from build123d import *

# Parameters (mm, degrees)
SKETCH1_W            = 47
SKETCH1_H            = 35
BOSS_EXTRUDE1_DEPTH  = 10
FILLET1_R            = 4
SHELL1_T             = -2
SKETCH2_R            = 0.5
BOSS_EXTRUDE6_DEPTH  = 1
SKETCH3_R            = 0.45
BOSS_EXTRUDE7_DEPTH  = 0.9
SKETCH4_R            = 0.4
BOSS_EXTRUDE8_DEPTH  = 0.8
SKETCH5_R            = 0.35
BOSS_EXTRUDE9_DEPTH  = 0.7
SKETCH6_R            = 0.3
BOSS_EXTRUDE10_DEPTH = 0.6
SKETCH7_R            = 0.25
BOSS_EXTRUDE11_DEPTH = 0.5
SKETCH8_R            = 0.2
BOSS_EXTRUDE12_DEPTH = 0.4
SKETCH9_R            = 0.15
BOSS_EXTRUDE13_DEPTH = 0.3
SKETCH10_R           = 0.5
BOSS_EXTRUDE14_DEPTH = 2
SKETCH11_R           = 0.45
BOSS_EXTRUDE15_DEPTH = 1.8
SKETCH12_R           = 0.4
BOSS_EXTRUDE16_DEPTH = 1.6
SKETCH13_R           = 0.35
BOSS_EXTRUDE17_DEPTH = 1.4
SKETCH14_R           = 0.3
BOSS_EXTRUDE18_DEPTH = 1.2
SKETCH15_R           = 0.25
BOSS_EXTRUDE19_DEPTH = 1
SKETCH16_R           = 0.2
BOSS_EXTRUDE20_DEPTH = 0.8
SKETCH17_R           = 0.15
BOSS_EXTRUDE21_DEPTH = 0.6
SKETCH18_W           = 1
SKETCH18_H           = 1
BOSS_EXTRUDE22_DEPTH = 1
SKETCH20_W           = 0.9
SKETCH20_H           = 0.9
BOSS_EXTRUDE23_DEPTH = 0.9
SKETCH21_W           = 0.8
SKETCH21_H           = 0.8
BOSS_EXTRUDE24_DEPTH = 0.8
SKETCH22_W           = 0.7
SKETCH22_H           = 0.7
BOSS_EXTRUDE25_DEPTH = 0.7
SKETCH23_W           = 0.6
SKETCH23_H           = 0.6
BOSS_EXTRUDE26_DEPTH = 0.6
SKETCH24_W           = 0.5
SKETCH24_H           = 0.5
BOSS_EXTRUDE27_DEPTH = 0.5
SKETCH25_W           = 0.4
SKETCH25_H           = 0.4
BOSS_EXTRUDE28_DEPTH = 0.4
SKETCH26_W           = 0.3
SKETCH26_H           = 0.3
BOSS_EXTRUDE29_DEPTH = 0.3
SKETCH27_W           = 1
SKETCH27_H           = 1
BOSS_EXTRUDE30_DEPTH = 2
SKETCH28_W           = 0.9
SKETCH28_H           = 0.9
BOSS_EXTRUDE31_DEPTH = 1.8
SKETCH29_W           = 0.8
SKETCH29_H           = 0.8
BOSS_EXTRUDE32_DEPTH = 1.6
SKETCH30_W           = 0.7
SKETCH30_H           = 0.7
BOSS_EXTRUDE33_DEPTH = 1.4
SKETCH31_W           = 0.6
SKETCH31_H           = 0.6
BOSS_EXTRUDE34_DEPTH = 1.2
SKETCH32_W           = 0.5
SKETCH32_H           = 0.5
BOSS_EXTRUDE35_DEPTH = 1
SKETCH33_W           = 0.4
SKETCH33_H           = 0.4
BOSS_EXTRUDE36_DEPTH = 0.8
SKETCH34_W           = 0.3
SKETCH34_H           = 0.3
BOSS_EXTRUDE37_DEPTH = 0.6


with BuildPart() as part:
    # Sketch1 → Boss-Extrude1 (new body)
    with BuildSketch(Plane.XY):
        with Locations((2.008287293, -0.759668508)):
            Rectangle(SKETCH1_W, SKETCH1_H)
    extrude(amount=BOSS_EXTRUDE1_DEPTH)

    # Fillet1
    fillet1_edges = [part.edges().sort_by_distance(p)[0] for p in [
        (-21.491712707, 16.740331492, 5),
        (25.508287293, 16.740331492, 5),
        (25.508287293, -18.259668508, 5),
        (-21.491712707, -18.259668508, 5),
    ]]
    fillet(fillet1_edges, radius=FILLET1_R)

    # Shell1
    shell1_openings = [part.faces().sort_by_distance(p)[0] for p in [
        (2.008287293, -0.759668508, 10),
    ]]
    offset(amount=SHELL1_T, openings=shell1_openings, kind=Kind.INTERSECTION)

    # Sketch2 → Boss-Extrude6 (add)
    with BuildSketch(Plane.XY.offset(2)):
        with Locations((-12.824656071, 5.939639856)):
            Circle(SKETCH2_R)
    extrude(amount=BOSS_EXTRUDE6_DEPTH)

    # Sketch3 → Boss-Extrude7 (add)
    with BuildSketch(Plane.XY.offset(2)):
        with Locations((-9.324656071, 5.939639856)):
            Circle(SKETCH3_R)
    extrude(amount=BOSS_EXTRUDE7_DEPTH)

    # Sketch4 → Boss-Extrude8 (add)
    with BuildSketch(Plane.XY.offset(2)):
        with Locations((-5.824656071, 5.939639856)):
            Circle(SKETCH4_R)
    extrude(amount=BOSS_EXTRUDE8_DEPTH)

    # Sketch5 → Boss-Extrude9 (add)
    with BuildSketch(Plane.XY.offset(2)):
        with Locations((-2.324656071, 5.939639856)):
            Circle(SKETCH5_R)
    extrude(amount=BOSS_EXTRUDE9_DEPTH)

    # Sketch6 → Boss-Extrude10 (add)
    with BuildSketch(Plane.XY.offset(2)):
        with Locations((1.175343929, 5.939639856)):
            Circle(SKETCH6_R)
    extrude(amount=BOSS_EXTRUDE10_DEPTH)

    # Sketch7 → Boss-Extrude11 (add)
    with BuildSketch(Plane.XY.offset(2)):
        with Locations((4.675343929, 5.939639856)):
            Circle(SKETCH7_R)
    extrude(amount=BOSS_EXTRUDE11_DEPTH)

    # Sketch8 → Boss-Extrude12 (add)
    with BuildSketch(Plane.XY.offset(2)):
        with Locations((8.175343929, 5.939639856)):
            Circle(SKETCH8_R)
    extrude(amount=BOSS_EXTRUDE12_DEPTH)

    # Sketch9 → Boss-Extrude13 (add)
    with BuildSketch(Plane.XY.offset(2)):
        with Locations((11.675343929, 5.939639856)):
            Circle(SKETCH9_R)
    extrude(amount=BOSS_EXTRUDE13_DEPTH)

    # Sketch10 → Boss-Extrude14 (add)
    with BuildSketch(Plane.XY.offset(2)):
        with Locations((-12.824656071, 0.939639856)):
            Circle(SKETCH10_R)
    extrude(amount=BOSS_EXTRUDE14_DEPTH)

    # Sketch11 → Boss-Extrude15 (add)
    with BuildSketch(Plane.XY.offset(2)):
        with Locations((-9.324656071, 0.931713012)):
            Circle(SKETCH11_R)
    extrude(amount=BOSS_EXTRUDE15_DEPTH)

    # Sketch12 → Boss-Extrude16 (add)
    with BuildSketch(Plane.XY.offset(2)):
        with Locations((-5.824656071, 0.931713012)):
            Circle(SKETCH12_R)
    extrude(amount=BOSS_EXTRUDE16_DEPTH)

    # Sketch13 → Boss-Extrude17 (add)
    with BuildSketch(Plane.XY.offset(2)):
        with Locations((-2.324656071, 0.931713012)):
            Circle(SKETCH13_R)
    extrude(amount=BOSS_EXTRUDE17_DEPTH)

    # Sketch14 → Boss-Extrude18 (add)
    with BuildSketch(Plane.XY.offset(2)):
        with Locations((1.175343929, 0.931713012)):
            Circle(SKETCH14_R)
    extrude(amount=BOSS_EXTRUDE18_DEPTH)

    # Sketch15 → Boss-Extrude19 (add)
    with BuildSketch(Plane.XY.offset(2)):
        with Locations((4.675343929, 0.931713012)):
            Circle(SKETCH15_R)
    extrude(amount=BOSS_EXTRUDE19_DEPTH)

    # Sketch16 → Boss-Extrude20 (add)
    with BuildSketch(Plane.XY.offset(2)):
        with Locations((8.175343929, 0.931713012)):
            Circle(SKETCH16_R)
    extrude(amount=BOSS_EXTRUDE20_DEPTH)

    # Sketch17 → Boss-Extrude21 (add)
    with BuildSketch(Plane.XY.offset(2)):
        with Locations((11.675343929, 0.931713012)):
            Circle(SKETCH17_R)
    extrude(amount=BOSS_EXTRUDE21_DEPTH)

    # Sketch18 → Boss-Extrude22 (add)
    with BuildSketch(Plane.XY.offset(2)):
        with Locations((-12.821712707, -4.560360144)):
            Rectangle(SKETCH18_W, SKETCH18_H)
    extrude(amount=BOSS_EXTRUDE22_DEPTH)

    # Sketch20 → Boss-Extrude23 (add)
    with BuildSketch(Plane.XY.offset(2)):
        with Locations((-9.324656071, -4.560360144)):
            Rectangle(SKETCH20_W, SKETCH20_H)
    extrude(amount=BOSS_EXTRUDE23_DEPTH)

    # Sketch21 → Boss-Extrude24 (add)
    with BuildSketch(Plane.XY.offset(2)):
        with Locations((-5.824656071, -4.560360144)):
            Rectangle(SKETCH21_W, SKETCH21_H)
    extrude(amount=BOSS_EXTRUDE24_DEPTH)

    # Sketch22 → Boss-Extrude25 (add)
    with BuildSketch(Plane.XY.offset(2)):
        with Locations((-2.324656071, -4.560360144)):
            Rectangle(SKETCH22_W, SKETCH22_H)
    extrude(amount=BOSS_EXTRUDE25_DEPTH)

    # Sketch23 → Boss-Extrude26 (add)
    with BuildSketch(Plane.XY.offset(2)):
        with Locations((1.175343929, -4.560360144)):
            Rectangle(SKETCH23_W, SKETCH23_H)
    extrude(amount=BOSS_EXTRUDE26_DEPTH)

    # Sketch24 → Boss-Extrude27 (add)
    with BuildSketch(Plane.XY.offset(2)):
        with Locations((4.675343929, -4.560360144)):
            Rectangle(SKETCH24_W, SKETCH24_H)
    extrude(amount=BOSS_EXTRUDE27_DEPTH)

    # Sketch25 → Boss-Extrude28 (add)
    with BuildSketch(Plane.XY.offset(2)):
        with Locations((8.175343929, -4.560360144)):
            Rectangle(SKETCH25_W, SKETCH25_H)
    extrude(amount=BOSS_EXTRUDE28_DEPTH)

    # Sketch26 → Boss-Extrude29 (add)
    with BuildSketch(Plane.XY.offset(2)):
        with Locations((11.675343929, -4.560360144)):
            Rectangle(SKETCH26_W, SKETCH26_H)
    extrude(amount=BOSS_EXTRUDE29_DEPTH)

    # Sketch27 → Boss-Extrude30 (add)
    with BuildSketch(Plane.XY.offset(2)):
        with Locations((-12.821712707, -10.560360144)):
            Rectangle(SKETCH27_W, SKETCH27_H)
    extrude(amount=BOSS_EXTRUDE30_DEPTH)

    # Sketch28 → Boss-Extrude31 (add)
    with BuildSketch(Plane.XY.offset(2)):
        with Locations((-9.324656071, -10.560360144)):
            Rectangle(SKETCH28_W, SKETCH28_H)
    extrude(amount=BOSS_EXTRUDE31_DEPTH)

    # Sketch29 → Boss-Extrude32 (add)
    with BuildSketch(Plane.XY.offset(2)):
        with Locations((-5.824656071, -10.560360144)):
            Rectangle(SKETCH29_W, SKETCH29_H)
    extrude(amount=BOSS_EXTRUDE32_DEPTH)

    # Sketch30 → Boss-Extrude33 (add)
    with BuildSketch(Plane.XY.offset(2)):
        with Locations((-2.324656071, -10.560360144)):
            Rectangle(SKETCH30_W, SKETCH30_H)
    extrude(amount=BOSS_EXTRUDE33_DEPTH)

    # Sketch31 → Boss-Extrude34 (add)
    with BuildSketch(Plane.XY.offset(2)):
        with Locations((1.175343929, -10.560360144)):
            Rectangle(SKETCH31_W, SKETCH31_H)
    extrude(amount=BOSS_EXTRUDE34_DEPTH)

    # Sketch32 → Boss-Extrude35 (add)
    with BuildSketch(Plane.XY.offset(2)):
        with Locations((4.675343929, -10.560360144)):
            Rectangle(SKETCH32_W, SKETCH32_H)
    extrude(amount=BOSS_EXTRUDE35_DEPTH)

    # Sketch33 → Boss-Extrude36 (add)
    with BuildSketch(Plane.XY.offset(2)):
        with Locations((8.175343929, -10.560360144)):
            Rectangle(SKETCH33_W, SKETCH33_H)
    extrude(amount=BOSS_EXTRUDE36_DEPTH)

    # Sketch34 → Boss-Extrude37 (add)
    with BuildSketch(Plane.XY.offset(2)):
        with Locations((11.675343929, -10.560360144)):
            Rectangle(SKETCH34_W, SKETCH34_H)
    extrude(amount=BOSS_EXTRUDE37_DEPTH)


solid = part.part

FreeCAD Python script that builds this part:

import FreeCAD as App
import Part
import Sketcher
from FreeCAD import Vector


def edges_at(feature, points):
    """Names of the edges that pass closest to the given points."""
    edges = feature.Shape.Edges
    near = lambda p: min(range(len(edges)), key=lambda i: edges[i].distToShape(Part.Vertex(*p))[0])
    return sorted({f"Edge{near(p) + 1}" for p in points})


def faces_at(feature, points):
    """Names of the faces that lie closest to the given points."""
    faces = feature.Shape.Faces
    near = lambda p: min(range(len(faces)), key=lambda i: faces[i].distToShape(Part.Vertex(*p))[0])
    return sorted({f"Face{near(p) + 1}" for p in points})

doc = App.newDocument("Part")
body = doc.addObject("PartDesign::Body", "Body")

sketch1 = doc.addObject("Sketcher::SketchObject", "Sketch")
body.addObject(sketch1)
sketch1.AttachmentSupport = (doc.XY_Plane, [""])
sketch1.MapMode = "FlatFace"
sketch1.addGeometry([
    Part.LineSegment(Vector(-21, 17, 0), Vector(-21, -18, 0)),
    Part.LineSegment(Vector(-21, -18, 0), Vector(26, -18, 0)),
    Part.LineSegment(Vector(26, -18, 0), Vector(26, 17, 0)),
    Part.LineSegment(Vector(26, 17, 0), Vector(-21, 17, 0)),
], False)
sketch1.addConstraint([
    Sketcher.Constraint("Coincident", 0, 2, 1, 1),
    Sketcher.Constraint("Coincident", 1, 2, 2, 1),
    Sketcher.Constraint("Coincident", 2, 2, 3, 1),
    Sketcher.Constraint("Coincident", 3, 2, 0, 1),
    Sketcher.Constraint("Vertical", 0),
    Sketcher.Constraint("Horizontal", 1),
    Sketcher.Constraint("Vertical", 2),
    Sketcher.Constraint("Horizontal", 3),
    Sketcher.Constraint("DistanceX", 1, 1, 1, 2, 47.0),
    Sketcher.Constraint("DistanceY", 0, 2, 0, 1, 35.0),
    Sketcher.Constraint("DistanceY", 0, 2, -1, 1, 18.259669),
    Sketcher.Constraint("DistanceX", 0, 2, -1, 1, 21.491713),
])
pad1 = doc.addObject("PartDesign::Pad", "Pad")
body.addObject(pad1)
pad1.Profile = sketch1
pad1.Length = 10
doc.recompute()

fillet = doc.addObject("PartDesign::Fillet", "Fillet")
body.addObject(fillet)
fillet.Base = (pad1, edges_at(pad1, [
    (-21.492, 16.74, 5),
    (25.508, 16.74, 5),
    (25.508, -18.26, 5),
    (-21.492, -18.26, 5),
]))
fillet.Radius = 4
doc.recompute()

thickness = doc.addObject("PartDesign::Thickness", "Thickness")
body.addObject(thickness)
thickness.Base = (fillet, faces_at(fillet, [(2.008, -0.76, 10)]))
thickness.Value = 2
thickness.Reversed = True
thickness.Join = "Intersection"

sketch2 = doc.addObject("Sketcher::SketchObject", "Sketch001")
body.addObject(sketch2)
sketch2.AttachmentSupport = (doc.XY_Plane, [""])
sketch2.MapMode = "FlatFace"
sketch2.AttachmentOffset = App.Placement(Vector(0, 0, 2), App.Rotation())
sketch2.addGeometry(Part.Circle(Vector(-12.8, 5.9, 0), Vector(0, 0, 1), 0.5), False)
sketch2.addConstraint([
    Sketcher.Constraint("Diameter", 0, 1.0),
    Sketcher.Constraint("DistanceY", -1, 1, 0, 3, 5.93964),
    Sketcher.Constraint("DistanceX", 0, 3, -1, 1, 12.824656),
])
pad2 = doc.addObject("PartDesign::Pad", "Pad001")
body.addObject(pad2)
pad2.Profile = sketch2
pad2.Length = 1

sketch3 = doc.addObject("Sketcher::SketchObject", "Sketch002")
body.addObject(sketch3)
sketch3.AttachmentSupport = (doc.XY_Plane, [""])
sketch3.MapMode = "FlatFace"
sketch3.AttachmentOffset = App.Placement(Vector(0, 0, 2), App.Rotation())
sketch3.addGeometry(Part.Circle(Vector(-9.32, 5.94, 0), Vector(0, 0, 1), 0.45), False)
sketch3.addConstraint([
    Sketcher.Constraint("Diameter", 0, 0.9),
    Sketcher.Constraint("DistanceY", -1, 1, 0, 3, 5.93964),
    Sketcher.Constraint("DistanceX", 0, 3, -1, 1, 9.324656),
])
pad3 = doc.addObject("PartDesign::Pad", "Pad002")
body.addObject(pad3)
pad3.Profile = sketch3
pad3.Length = 0.9

sketch4 = doc.addObject("Sketcher::SketchObject", "Sketch003")
body.addObject(sketch4)
sketch4.AttachmentSupport = (doc.XY_Plane, [""])
sketch4.MapMode = "FlatFace"
sketch4.AttachmentOffset = App.Placement(Vector(0, 0, 2), App.Rotation())
sketch4.addGeometry(Part.Circle(Vector(-5.82, 5.94, 0), Vector(0, 0, 1), 0.4), False)
sketch4.addConstraint([
    Sketcher.Constraint("Diameter", 0, 0.8),
    Sketcher.Constraint("DistanceY", -1, 1, 0, 3, 5.93964),
    Sketcher.Constraint("DistanceX", 0, 3, -1, 1, 5.824656),
])
pad4 = doc.addObject("PartDesign::Pad", "Pad003")
body.addObject(pad4)
pad4.Profile = sketch4
pad4.Length = 0.8

sketch5 = doc.addObject("Sketcher::SketchObject", "Sketch004")
body.addObject(sketch5)
sketch5.AttachmentSupport = (doc.XY_Plane, [""])
sketch5.MapMode = "FlatFace"
sketch5.AttachmentOffset = App.Placement(Vector(0, 0, 2), App.Rotation())
sketch5.addGeometry(Part.Circle(Vector(-2.32, 5.94, 0), Vector(0, 0, 1), 0.35), False)
sketch5.addConstraint([
    Sketcher.Constraint("Diameter", 0, 0.7),
    Sketcher.Constraint("DistanceY", -1, 1, 0, 3, 5.93964),
    Sketcher.Constraint("DistanceX", 0, 3, -1, 1, 2.324656),
])
pad5 = doc.addObject("PartDesign::Pad", "Pad004")
body.addObject(pad5)
pad5.Profile = sketch5
pad5.Length = 0.7

sketch6 = doc.addObject("Sketcher::SketchObject", "Sketch005")
body.addObject(sketch6)
sketch6.AttachmentSupport = (doc.XY_Plane, [""])
sketch6.MapMode = "FlatFace"
sketch6.AttachmentOffset = App.Placement(Vector(0, 0, 2), App.Rotation())
sketch6.addGeometry(Part.Circle(Vector(1.18, 5.94, 0), Vector(0, 0, 1), 0.3), False)
sketch6.addConstraint([
    Sketcher.Constraint("Diameter", 0, 0.6),
    Sketcher.Constraint("DistanceY", -1, 1, 0, 3, 5.93964),
    Sketcher.Constraint("DistanceX", -1, 1, 0, 3, 1.175344),
])
pad6 = doc.addObject("PartDesign::Pad", "Pad005")
body.addObject(pad6)
pad6.Profile = sketch6
pad6.Length = 0.6

sketch7 = doc.addObject("Sketcher::SketchObject", "Sketch006")
body.addObject(sketch7)
sketch7.AttachmentSupport = (doc.XY_Plane, [""])
sketch7.MapMode = "FlatFace"
sketch7.AttachmentOffset = App.Placement(Vector(0, 0, 2), App.Rotation())
sketch7.addGeometry(Part.Circle(Vector(4.68, 5.94, 0), Vector(0, 0, 1), 0.25), False)
sketch7.addConstraint([
    Sketcher.Constraint("Diameter", 0, 0.5),
    Sketcher.Constraint("DistanceY", -1, 1, 0, 3, 5.93964),
    Sketcher.Constraint("DistanceX", -1, 1, 0, 3, 4.675344),
])
pad7 = doc.addObject("PartDesign::Pad", "Pad006")
body.addObject(pad7)
pad7.Profile = sketch7
pad7.Length = 0.5

sketch8 = doc.addObject("Sketcher::SketchObject", "Sketch007")
body.addObject(sketch8)
sketch8.AttachmentSupport = (doc.XY_Plane, [""])
sketch8.MapMode = "FlatFace"
sketch8.AttachmentOffset = App.Placement(Vector(0, 0, 2), App.Rotation())
sketch8.addGeometry(Part.Circle(Vector(8.18, 5.94, 0), Vector(0, 0, 1), 0.2), False)
sketch8.addConstraint([
    Sketcher.Constraint("Diameter", 0, 0.4),
    Sketcher.Constraint("DistanceY", -1, 1, 0, 3, 5.93964),
    Sketcher.Constraint("DistanceX", -1, 1, 0, 3, 8.175344),
])
pad8 = doc.addObject("PartDesign::Pad", "Pad007")
body.addObject(pad8)
pad8.Profile = sketch8
pad8.Length = 0.4

sketch9 = doc.addObject("Sketcher::SketchObject", "Sketch008")
body.addObject(sketch9)
sketch9.AttachmentSupport = (doc.XY_Plane, [""])
sketch9.MapMode = "FlatFace"
sketch9.AttachmentOffset = App.Placement(Vector(0, 0, 2), App.Rotation())
sketch9.addGeometry(Part.Circle(Vector(11.68, 5.94, 0), Vector(0, 0, 1), 0.15), False)
sketch9.addConstraint([
    Sketcher.Constraint("Diameter", 0, 0.3),
    Sketcher.Constraint("DistanceY", -1, 1, 0, 3, 5.93964),
    Sketcher.Constraint("DistanceX", -1, 1, 0, 3, 11.675344),
])
pad9 = doc.addObject("PartDesign::Pad", "Pad008")
body.addObject(pad9)
pad9.Profile = sketch9
pad9.Length = 0.3

sketch10 = doc.addObject("Sketcher::SketchObject", "Sketch009")
body.addObject(sketch10)
sketch10.AttachmentSupport = (doc.XY_Plane, [""])
sketch10.MapMode = "FlatFace"
sketch10.AttachmentOffset = App.Placement(Vector(0, 0, 2), App.Rotation())
sketch10.addGeometry(Part.Circle(Vector(-12.8, 0.9, 0), Vector(0, 0, 1), 0.5), False)
sketch10.addConstraint([
    Sketcher.Constraint("Diameter", 0, 1.0),
    Sketcher.Constraint("DistanceY", -1, 1, 0, 3, 0.93964),
    Sketcher.Constraint("DistanceX", 0, 3, -1, 1, 12.824656),
])
pad10 = doc.addObject("PartDesign::Pad", "Pad009")
body.addObject(pad10)
pad10.Profile = sketch10
pad10.Length = 2

sketch11 = doc.addObject("Sketcher::SketchObject", "Sketch010")
body.addObject(sketch11)
sketch11.AttachmentSupport = (doc.XY_Plane, [""])
sketch11.MapMode = "FlatFace"
sketch11.AttachmentOffset = App.Placement(Vector(0, 0, 2), App.Rotation())
sketch11.addGeometry(Part.Circle(Vector(-9.32, 0.93, 0), Vector(0, 0, 1), 0.45), False)
sketch11.addConstraint([
    Sketcher.Constraint("Diameter", 0, 0.9),
    Sketcher.Constraint("DistanceX", 0, 3, -1, 1, 9.324656),
    Sketcher.Constraint("DistanceY", -1, 1, 0, 3, 0.931713),
])
pad11 = doc.addObject("PartDesign::Pad", "Pad010")
body.addObject(pad11)
pad11.Profile = sketch11
pad11.Length = 1.8

sketch12 = doc.addObject("Sketcher::SketchObject", "Sketch011")
body.addObject(sketch12)
sketch12.AttachmentSupport = (doc.XY_Plane, [""])
sketch12.MapMode = "FlatFace"
sketch12.AttachmentOffset = App.Placement(Vector(0, 0, 2), App.Rotation())
sketch12.addGeometry(Part.Circle(Vector(-5.82, 0.93, 0), Vector(0, 0, 1), 0.4), False)
sketch12.addConstraint([
    Sketcher.Constraint("Diameter", 0, 0.8),
    Sketcher.Constraint("DistanceX", 0, 3, -1, 1, 5.824656),
    Sketcher.Constraint("DistanceY", -1, 1, 0, 3, 0.931713),
])
pad12 = doc.addObject("PartDesign::Pad", "Pad011")
body.addObject(pad12)
pad12.Profile = sketch12
pad12.Length = 1.6

sketch13 = doc.addObject("Sketcher::SketchObject", "Sketch012")
body.addObject(sketch13)
sketch13.AttachmentSupport = (doc.XY_Plane, [""])
sketch13.MapMode = "FlatFace"
sketch13.AttachmentOffset = App.Placement(Vector(0, 0, 2), App.Rotation())
sketch13.addGeometry(Part.Circle(Vector(-2.32, 0.93, 0), Vector(0, 0, 1), 0.35), False)
sketch13.addConstraint([
    Sketcher.Constraint("Diameter", 0, 0.7),
    Sketcher.Constraint("DistanceX", 0, 3, -1, 1, 2.324656),
    Sketcher.Constraint("DistanceY", -1, 1, 0, 3, 0.931713),
])
pad13 = doc.addObject("PartDesign::Pad", "Pad012")
body.addObject(pad13)
pad13.Profile = sketch13
pad13.Length = 1.4

sketch14 = doc.addObject("Sketcher::SketchObject", "Sketch013")
body.addObject(sketch14)
sketch14.AttachmentSupport = (doc.XY_Plane, [""])
sketch14.MapMode = "FlatFace"
sketch14.AttachmentOffset = App.Placement(Vector(0, 0, 2), App.Rotation())
sketch14.addGeometry(Part.Circle(Vector(1.18, 0.93, 0), Vector(0, 0, 1), 0.3), False)
sketch14.addConstraint([
    Sketcher.Constraint("Diameter", 0, 0.6),
    Sketcher.Constraint("DistanceX", -1, 1, 0, 3, 1.175344),
    Sketcher.Constraint("DistanceY", -1, 1, 0, 3, 0.931713),
])
pad14 = doc.addObject("PartDesign::Pad", "Pad013")
body.addObject(pad14)
pad14.Profile = sketch14
pad14.Length = 1.2

sketch15 = doc.addObject("Sketcher::SketchObject", "Sketch014")
body.addObject(sketch15)
sketch15.AttachmentSupport = (doc.XY_Plane, [""])
sketch15.MapMode = "FlatFace"
sketch15.AttachmentOffset = App.Placement(Vector(0, 0, 2), App.Rotation())
sketch15.addGeometry(Part.Circle(Vector(4.68, 0.93, 0), Vector(0, 0, 1), 0.25), False)
sketch15.addConstraint([
    Sketcher.Constraint("Diameter", 0, 0.5),
    Sketcher.Constraint("DistanceX", -1, 1, 0, 3, 4.675344),
    Sketcher.Constraint("DistanceY", -1, 1, 0, 3, 0.931713),
])
pad15 = doc.addObject("PartDesign::Pad", "Pad014")
body.addObject(pad15)
pad15.Profile = sketch15
pad15.Length = 1

sketch16 = doc.addObject("Sketcher::SketchObject", "Sketch015")
body.addObject(sketch16)
sketch16.AttachmentSupport = (doc.XY_Plane, [""])
sketch16.MapMode = "FlatFace"
sketch16.AttachmentOffset = App.Placement(Vector(0, 0, 2), App.Rotation())
sketch16.addGeometry(Part.Circle(Vector(8.18, 0.93, 0), Vector(0, 0, 1), 0.2), False)
sketch16.addConstraint([
    Sketcher.Constraint("Diameter", 0, 0.4),
    Sketcher.Constraint("DistanceX", -1, 1, 0, 3, 8.175344),
    Sketcher.Constraint("DistanceY", -1, 1, 0, 3, 0.931713),
])
pad16 = doc.addObject("PartDesign::Pad", "Pad015")
body.addObject(pad16)
pad16.Profile = sketch16
pad16.Length = 0.8

sketch17 = doc.addObject("Sketcher::SketchObject", "Sketch016")
body.addObject(sketch17)
sketch17.AttachmentSupport = (doc.XY_Plane, [""])
sketch17.MapMode = "FlatFace"
sketch17.AttachmentOffset = App.Placement(Vector(0, 0, 2), App.Rotation())
sketch17.addGeometry(Part.Circle(Vector(11.68, 0.93, 0), Vector(0, 0, 1), 0.15), False)
sketch17.addConstraint([
    Sketcher.Constraint("Diameter", 0, 0.3),
    Sketcher.Constraint("DistanceX", -1, 1, 0, 3, 11.675344),
    Sketcher.Constraint("DistanceY", -1, 1, 0, 3, 0.931713),
])
pad17 = doc.addObject("PartDesign::Pad", "Pad016")
body.addObject(pad17)
pad17.Profile = sketch17
pad17.Length = 0.6

sketch18 = doc.addObject("Sketcher::SketchObject", "Sketch017")
body.addObject(sketch18)
sketch18.AttachmentSupport = (doc.XY_Plane, [""])
sketch18.MapMode = "FlatFace"
sketch18.AttachmentOffset = App.Placement(Vector(0, 0, 2), App.Rotation())
sketch18.addGeometry([
    Part.LineSegment(Vector(-13.3, -4.1, 0), Vector(-13.3, -5.1, 0)),
    Part.LineSegment(Vector(-13.3, -5.1, 0), Vector(-12.3, -5.1, 0)),
    Part.LineSegment(Vector(-12.3, -5.1, 0), Vector(-12.3, -4.1, 0)),
    Part.LineSegment(Vector(-12.3, -4.1, 0), Vector(-13.3, -4.1, 0)),
], False)
sketch18.addConstraint([
    Sketcher.Constraint("Coincident", 0, 2, 1, 1),
    Sketcher.Constraint("Coincident", 1, 2, 2, 1),
    Sketcher.Constraint("Coincident", 2, 2, 3, 1),
    Sketcher.Constraint("Coincident", 3, 2, 0, 1),
    Sketcher.Constraint("Vertical", 0),
    Sketcher.Constraint("Horizontal", 1),
    Sketcher.Constraint("Vertical", 2),
    Sketcher.Constraint("Horizontal", 3),
    Sketcher.Constraint("Equal", 3, 0),
    Sketcher.Constraint("DistanceX", 1, 1, 1, 2, 1.0),
    Sketcher.Constraint("DistanceY", 0, 2, -1, 1, 5.06036),
    Sketcher.Constraint("DistanceX", 0, 2, -1, 1, 13.321713),
])
pad18 = doc.addObject("PartDesign::Pad", "Pad017")
body.addObject(pad18)
pad18.Profile = sketch18
pad18.Length = 1

sketch19 = doc.addObject("Sketcher::SketchObject", "Sketch018")
body.addObject(sketch19)
sketch19.AttachmentSupport = (doc.XY_Plane, [""])
sketch19.MapMode = "FlatFace"
sketch19.AttachmentOffset = App.Placement(Vector(0, 0, 2), App.Rotation())
sketch19.addGeometry([
    Part.LineSegment(Vector(-9.8, -4.1, 0), Vector(-9.8, -5, 0)),
    Part.LineSegment(Vector(-9.8, -5, 0), Vector(-8.9, -5, 0)),
    Part.LineSegment(Vector(-8.9, -5, 0), Vector(-8.9, -4.1, 0)),
    Part.LineSegment(Vector(-8.9, -4.1, 0), Vector(-9.8, -4.1, 0)),
], False)
sketch19.addConstraint([
    Sketcher.Constraint("Coincident", 0, 2, 1, 1),
    Sketcher.Constraint("Coincident", 1, 2, 2, 1),
    Sketcher.Constraint("Coincident", 2, 2, 3, 1),
    Sketcher.Constraint("Coincident", 3, 2, 0, 1),
    Sketcher.Constraint("Vertical", 0),
    Sketcher.Constraint("Horizontal", 1),
    Sketcher.Constraint("Vertical", 2),
    Sketcher.Constraint("Horizontal", 3),
    Sketcher.Constraint("Equal", 3, 0),
    Sketcher.Constraint("DistanceX", 1, 1, 1, 2, 0.9),
    Sketcher.Constraint("DistanceY", 0, 2, -1, 1, 5.01036),
    Sketcher.Constraint("DistanceX", 0, 2, -1, 1, 9.774656),
])
pad19 = doc.addObject("PartDesign::Pad", "Pad018")
body.addObject(pad19)
pad19.Profile = sketch19
pad19.Length = 0.9

sketch20 = doc.addObject("Sketcher::SketchObject", "Sketch019")
body.addObject(sketch20)
sketch20.AttachmentSupport = (doc.XY_Plane, [""])
sketch20.MapMode = "FlatFace"
sketch20.AttachmentOffset = App.Placement(Vector(0, 0, 2), App.Rotation())
sketch20.addGeometry([
    Part.LineSegment(Vector(-6.2, -4.2, 0), Vector(-6.2, -5, 0)),
    Part.LineSegment(Vector(-6.2, -5, 0), Vector(-5.4, -5, 0)),
    Part.LineSegment(Vector(-5.4, -5, 0), Vector(-5.4, -4.2, 0)),
    Part.LineSegment(Vector(-5.4, -4.2, 0), Vector(-6.2, -4.2, 0)),
], False)
sketch20.addConstraint([
    Sketcher.Constraint("Coincident", 0, 2, 1, 1),
    Sketcher.Constraint("Coincident", 1, 2, 2, 1),
    Sketcher.Constraint("Coincident", 2, 2, 3, 1),
    Sketcher.Constraint("Coincident", 3, 2, 0, 1),
    Sketcher.Constraint("Vertical", 0),
    Sketcher.Constraint("Horizontal", 1),
    Sketcher.Constraint("Vertical", 2),
    Sketcher.Constraint("Horizontal", 3),
    Sketcher.Constraint("Equal", 3, 0),
    Sketcher.Constraint("DistanceX", 1, 1, 1, 2, 0.8),
    Sketcher.Constraint("DistanceY", 0, 2, -1, 1, 4.96036),
    Sketcher.Constraint("DistanceX", 0, 2, -1, 1, 6.224656),
])
pad20 = doc.addObject("PartDesign::Pad", "Pad019")
body.addObject(pad20)
pad20.Profile = sketch20
pad20.Length = 0.8

sketch21 = doc.addObject("Sketcher::SketchObject", "Sketch020")
body.addObject(sketch21)
sketch21.AttachmentSupport = (doc.XY_Plane, [""])
sketch21.MapMode = "FlatFace"
sketch21.AttachmentOffset = App.Placement(Vector(0, 0, 2), App.Rotation())
sketch21.addGeometry([
    Part.LineSegment(Vector(-2.7, -4.2, 0), Vector(-2.7, -4.9, 0)),
    Part.LineSegment(Vector(-2.7, -4.9, 0), Vector(-2, -4.9, 0)),
    Part.LineSegment(Vector(-2, -4.9, 0), Vector(-2, -4.2, 0)),
    Part.LineSegment(Vector(-2, -4.2, 0), Vector(-2.7, -4.2, 0)),
], False)
sketch21.addConstraint([
    Sketcher.Constraint("Coincident", 0, 2, 1, 1),
    Sketcher.Constraint("Coincident", 1, 2, 2, 1),
    Sketcher.Constraint("Coincident", 2, 2, 3, 1),
    Sketcher.Constraint("Coincident", 3, 2, 0, 1),
    Sketcher.Constraint("Vertical", 0),
    Sketcher.Constraint("Horizontal", 1),
    Sketcher.Constraint("Vertical", 2),
    Sketcher.Constraint("Horizontal", 3),
    Sketcher.Constraint("Equal", 3, 0),
    Sketcher.Constraint("DistanceX", 1, 1, 1, 2, 0.7),
    Sketcher.Constraint("DistanceY", 0, 2, -1, 1, 4.91036),
    Sketcher.Constraint("DistanceX", 0, 2, -1, 1, 2.674656),
])
pad21 = doc.addObject("PartDesign::Pad", "Pad020")
body.addObject(pad21)
pad21.Profile = sketch21
pad21.Length = 0.7

sketch22 = doc.addObject("Sketcher::SketchObject", "Sketch021")
body.addObject(sketch22)
sketch22.AttachmentSupport = (doc.XY_Plane, [""])
sketch22.MapMode = "FlatFace"
sketch22.AttachmentOffset = App.Placement(Vector(0, 0, 2), App.Rotation())
sketch22.addGeometry([
    Part.LineSegment(Vector(0.9, -4.3, 0), Vector(0.9, -4.9, 0)),
    Part.LineSegment(Vector(0.9, -4.9, 0), Vector(1.5, -4.9, 0)),
    Part.LineSegment(Vector(1.5, -4.9, 0), Vector(1.5, -4.3, 0)),
    Part.LineSegment(Vector(1.5, -4.3, 0), Vector(0.9, -4.3, 0)),
], False)
sketch22.addConstraint([
    Sketcher.Constraint("Coincident", 0, 2, 1, 1),
    Sketcher.Constraint("Coincident", 1, 2, 2, 1),
    Sketcher.Constraint("Coincident", 2, 2, 3, 1),
    Sketcher.Constraint("Coincident", 3, 2, 0, 1),
    Sketcher.Constraint("Vertical", 0),
    Sketcher.Constraint("Horizontal", 1),
    Sketcher.Constraint("Vertical", 2),
    Sketcher.Constraint("Horizontal", 3),
    Sketcher.Constraint("Equal", 3, 0),
    Sketcher.Constraint("DistanceX", 1, 1, 1, 2, 0.6),
    Sketcher.Constraint("DistanceY", 0, 2, -1, 1, 4.86036),
    Sketcher.Constraint("DistanceX", -1, 1, 0, 2, 0.875344),
])
pad22 = doc.addObject("PartDesign::Pad", "Pad021")
body.addObject(pad22)
pad22.Profile = sketch22
pad22.Length = 0.6

sketch23 = doc.addObject("Sketcher::SketchObject", "Sketch022")
body.addObject(sketch23)
sketch23.AttachmentSupport = (doc.XY_Plane, [""])
sketch23.MapMode = "FlatFace"
sketch23.AttachmentOffset = App.Placement(Vector(0, 0, 2), App.Rotation())
sketch23.addGeometry([
    Part.LineSegment(Vector(4.4, -4.3, 0), Vector(4.4, -4.8, 0)),
    Part.LineSegment(Vector(4.4, -4.8, 0), Vector(4.9, -4.8, 0)),
    Part.LineSegment(Vector(4.9, -4.8, 0), Vector(4.9, -4.3, 0)),
    Part.LineSegment(Vector(4.9, -4.3, 0), Vector(4.4, -4.3, 0)),
], False)
sketch23.addConstraint([
    Sketcher.Constraint("Coincident", 0, 2, 1, 1),
    Sketcher.Constraint("Coincident", 1, 2, 2, 1),
    Sketcher.Constraint("Coincident", 2, 2, 3, 1),
    Sketcher.Constraint("Coincident", 3, 2, 0, 1),
    Sketcher.Constraint("Vertical", 0),
    Sketcher.Constraint("Horizontal", 1),
    Sketcher.Constraint("Vertical", 2),
    Sketcher.Constraint("Horizontal", 3),
    Sketcher.Constraint("Equal", 3, 0),
    Sketcher.Constraint("DistanceX", 1, 1, 1, 2, 0.5),
    Sketcher.Constraint("DistanceY", 0, 2, -1, 1, 4.81036),
    Sketcher.Constraint("DistanceX", -1, 1, 0, 2, 4.425344),
])
pad23 = doc.addObject("PartDesign::Pad", "Pad022")
body.addObject(pad23)
pad23.Profile = sketch23
pad23.Length = 0.5

sketch24 = doc.addObject("Sketcher::SketchObject", "Sketch023")
body.addObject(sketch24)
sketch24.AttachmentSupport = (doc.XY_Plane, [""])
sketch24.MapMode = "FlatFace"
sketch24.AttachmentOffset = App.Placement(Vector(0, 0, 2), App.Rotation())
sketch24.addGeometry([
    Part.LineSegment(Vector(7.98, -4.36, 0), Vector(7.98, -4.76, 0)),
    Part.LineSegment(Vector(7.98, -4.76, 0), Vector(8.38, -4.76, 0)),
    Part.LineSegment(Vector(8.38, -4.76, 0), Vector(8.38, -4.36, 0)),
    Part.LineSegment(Vector(8.38, -4.36, 0), Vector(7.98, -4.36, 0)),
], False)
sketch24.addConstraint([
    Sketcher.Constraint("Coincident", 0, 2, 1, 1),
    Sketcher.Constraint("Coincident", 1, 2, 2, 1),
    Sketcher.Constraint("Coincident", 2, 2, 3, 1),
    Sketcher.Constraint("Coincident", 3, 2, 0, 1),
    Sketcher.Constraint("Vertical", 0),
    Sketcher.Constraint("Horizontal", 1),
    Sketcher.Constraint("Vertical", 2),
    Sketcher.Constraint("Horizontal", 3),
    Sketcher.Constraint("Equal", 3, 0),
    Sketcher.Constraint("DistanceX", 1, 1, 1, 2, 0.4),
    Sketcher.Constraint("DistanceY", 0, 2, -1, 1, 4.76036),
    Sketcher.Constraint("DistanceX", -1, 1, 0, 2, 7.975344),
])
pad24 = doc.addObject("PartDesign::Pad", "Pad023")
body.addObject(pad24)
pad24.Profile = sketch24
pad24.Length = 0.4

sketch25 = doc.addObject("Sketcher::SketchObject", "Sketch024")
body.addObject(sketch25)
sketch25.AttachmentSupport = (doc.XY_Plane, [""])
sketch25.MapMode = "FlatFace"
sketch25.AttachmentOffset = App.Placement(Vector(0, 0, 2), App.Rotation())
sketch25.addGeometry([
    Part.LineSegment(Vector(11.53, -4.41, 0), Vector(11.53, -4.71, 0)),
    Part.LineSegment(Vector(11.53, -4.71, 0), Vector(11.83, -4.71, 0)),
    Part.LineSegment(Vector(11.83, -4.71, 0), Vector(11.83, -4.41, 0)),
    Part.LineSegment(Vector(11.83, -4.41, 0), Vector(11.53, -4.41, 0)),
], False)
sketch25.addConstraint([
    Sketcher.Constraint("Coincident", 0, 2, 1, 1),
    Sketcher.Constraint("Coincident", 1, 2, 2, 1),
    Sketcher.Constraint("Coincident", 2, 2, 3, 1),
    Sketcher.Constraint("Coincident", 3, 2, 0, 1),
    Sketcher.Constraint("Vertical", 0),
    Sketcher.Constraint("Horizontal", 1),
    Sketcher.Constraint("Vertical", 2),
    Sketcher.Constraint("Horizontal", 3),
    Sketcher.Constraint("Equal", 3, 0),
    Sketcher.Constraint("DistanceX", 1, 1, 1, 2, 0.3),
    Sketcher.Constraint("DistanceY", 0, 2, -1, 1, 4.71036),
    Sketcher.Constraint("DistanceX", -1, 1, 0, 2, 11.525344),
])
pad25 = doc.addObject("PartDesign::Pad", "Pad024")
body.addObject(pad25)
pad25.Profile = sketch25
pad25.Length = 0.3

sketch26 = doc.addObject("Sketcher::SketchObject", "Sketch025")
body.addObject(sketch26)
sketch26.AttachmentSupport = (doc.XY_Plane, [""])
sketch26.MapMode = "FlatFace"
sketch26.AttachmentOffset = App.Placement(Vector(0, 0, 2), App.Rotation())
sketch26.addGeometry([
    Part.LineSegment(Vector(-13.3, -10.1, 0), Vector(-13.3, -11.1, 0)),
    Part.LineSegment(Vector(-13.3, -11.1, 0), Vector(-12.3, -11.1, 0)),
    Part.LineSegment(Vector(-12.3, -11.1, 0), Vector(-12.3, -10.1, 0)),
    Part.LineSegment(Vector(-12.3, -10.1, 0), Vector(-13.3, -10.1, 0)),
], False)
sketch26.addConstraint([
    Sketcher.Constraint("Coincident", 0, 2, 1, 1),
    Sketcher.Constraint("Coincident", 1, 2, 2, 1),
    Sketcher.Constraint("Coincident", 2, 2, 3, 1),
    Sketcher.Constraint("Coincident", 3, 2, 0, 1),
    Sketcher.Constraint("Vertical", 0),
    Sketcher.Constraint("Horizontal", 1),
    Sketcher.Constraint("Vertical", 2),
    Sketcher.Constraint("Horizontal", 3),
    Sketcher.Constraint("Equal", 3, 0),
    Sketcher.Constraint("DistanceX", 1, 1, 1, 2, 1.0),
    Sketcher.Constraint("DistanceY", 0, 2, -1, 1, 11.06036),
    Sketcher.Constraint("DistanceX", 0, 2, -1, 1, 13.321713),
])
pad26 = doc.addObject("PartDesign::Pad", "Pad025")
body.addObject(pad26)
pad26.Profile = sketch26
pad26.Length = 2

sketch27 = doc.addObject("Sketcher::SketchObject", "Sketch026")
body.addObject(sketch27)
sketch27.AttachmentSupport = (doc.XY_Plane, [""])
sketch27.MapMode = "FlatFace"
sketch27.AttachmentOffset = App.Placement(Vector(0, 0, 2), App.Rotation())
sketch27.addGeometry([
    Part.LineSegment(Vector(-9.8, -10.1, 0), Vector(-9.8, -11, 0)),
    Part.LineSegment(Vector(-9.8, -11, 0), Vector(-8.9, -11, 0)),
    Part.LineSegment(Vector(-8.9, -11, 0), Vector(-8.9, -10.1, 0)),
    Part.LineSegment(Vector(-8.9, -10.1, 0), Vector(-9.8, -10.1, 0)),
], False)
sketch27.addConstraint([
    Sketcher.Constraint("Coincident", 0, 2, 1, 1),
    Sketcher.Constraint("Coincident", 1, 2, 2, 1),
    Sketcher.Constraint("Coincident", 2, 2, 3, 1),
    Sketcher.Constraint("Coincident", 3, 2, 0, 1),
    Sketcher.Constraint("Vertical", 0),
    Sketcher.Constraint("Horizontal", 1),
    Sketcher.Constraint("Vertical", 2),
    Sketcher.Constraint("Horizontal", 3),
    Sketcher.Constraint("Equal", 3, 0),
    Sketcher.Constraint("DistanceX", 1, 1, 1, 2, 0.9),
    Sketcher.Constraint("DistanceY", 0, 2, -1, 1, 11.01036),
    Sketcher.Constraint("DistanceX", 0, 2, -1, 1, 9.774656),
])
pad27 = doc.addObject("PartDesign::Pad", "Pad026")
body.addObject(pad27)
pad27.Profile = sketch27
pad27.Length = 1.8

sketch28 = doc.addObject("Sketcher::SketchObject", "Sketch027")
body.addObject(sketch28)
sketch28.AttachmentSupport = (doc.XY_Plane, [""])
sketch28.MapMode = "FlatFace"
sketch28.AttachmentOffset = App.Placement(Vector(0, 0, 2), App.Rotation())
sketch28.addGeometry([
    Part.LineSegment(Vector(-6.2, -10.2, 0), Vector(-6.2, -11, 0)),
    Part.LineSegment(Vector(-6.2, -11, 0), Vector(-5.4, -11, 0)),
    Part.LineSegment(Vector(-5.4, -11, 0), Vector(-5.4, -10.2, 0)),
    Part.LineSegment(Vector(-5.4, -10.2, 0), Vector(-6.2, -10.2, 0)),
], False)
sketch28.addConstraint([
    Sketcher.Constraint("Coincident", 0, 2, 1, 1),
    Sketcher.Constraint("Coincident", 1, 2, 2, 1),
    Sketcher.Constraint("Coincident", 2, 2, 3, 1),
    Sketcher.Constraint("Coincident", 3, 2, 0, 1),
    Sketcher.Constraint("Vertical", 0),
    Sketcher.Constraint("Horizontal", 1),
    Sketcher.Constraint("Vertical", 2),
    Sketcher.Constraint("Horizontal", 3),
    Sketcher.Constraint("Equal", 3, 0),
    Sketcher.Constraint("DistanceX", 1, 1, 1, 2, 0.8),
    Sketcher.Constraint("DistanceY", 0, 2, -1, 1, 10.96036),
    Sketcher.Constraint("DistanceX", 0, 2, -1, 1, 6.224656),
])
pad28 = doc.addObject("PartDesign::Pad", "Pad027")
body.addObject(pad28)
pad28.Profile = sketch28
pad28.Length = 1.6

sketch29 = doc.addObject("Sketcher::SketchObject", "Sketch028")
body.addObject(sketch29)
sketch29.AttachmentSupport = (doc.XY_Plane, [""])
sketch29.MapMode = "FlatFace"
sketch29.AttachmentOffset = App.Placement(Vector(0, 0, 2), App.Rotation())
sketch29.addGeometry([
    Part.LineSegment(Vector(-2.7, -10.2, 0), Vector(-2.7, -10.9, 0)),
    Part.LineSegment(Vector(-2.7, -10.9, 0), Vector(-2, -10.9, 0)),
    Part.LineSegment(Vector(-2, -10.9, 0), Vector(-2, -10.2, 0)),
    Part.LineSegment(Vector(-2, -10.2, 0), Vector(-2.7, -10.2, 0)),
], False)
sketch29.addConstraint([
    Sketcher.Constraint("Coincident", 0, 2, 1, 1),
    Sketcher.Constraint("Coincident", 1, 2, 2, 1),
    Sketcher.Constraint("Coincident", 2, 2, 3, 1),
    Sketcher.Constraint("Coincident", 3, 2, 0, 1),
    Sketcher.Constraint("Vertical", 0),
    Sketcher.Constraint("Horizontal", 1),
    Sketcher.Constraint("Vertical", 2),
    Sketcher.Constraint("Horizontal", 3),
    Sketcher.Constraint("Equal", 3, 0),
    Sketcher.Constraint("DistanceX", 1, 1, 1, 2, 0.7),
    Sketcher.Constraint("DistanceY", 0, 2, -1, 1, 10.91036),
    Sketcher.Constraint("DistanceX", 0, 2, -1, 1, 2.674656),
])
pad29 = doc.addObject("PartDesign::Pad", "Pad028")
body.addObject(pad29)
pad29.Profile = sketch29
pad29.Length = 1.4

sketch30 = doc.addObject("Sketcher::SketchObject", "Sketch029")
body.addObject(sketch30)
sketch30.AttachmentSupport = (doc.XY_Plane, [""])
sketch30.MapMode = "FlatFace"
sketch30.AttachmentOffset = App.Placement(Vector(0, 0, 2), App.Rotation())
sketch30.addGeometry([
    Part.LineSegment(Vector(0.9, -10.3, 0), Vector(0.9, -10.9, 0)),
    Part.LineSegment(Vector(0.9, -10.9, 0), Vector(1.5, -10.9, 0)),
    Part.LineSegment(Vector(1.5, -10.9, 0), Vector(1.5, -10.3, 0)),
    Part.LineSegment(Vector(1.5, -10.3, 0), Vector(0.9, -10.3, 0)),
], False)
sketch30.addConstraint([
    Sketcher.Constraint("Coincident", 0, 2, 1, 1),
    Sketcher.Constraint("Coincident", 1, 2, 2, 1),
    Sketcher.Constraint("Coincident", 2, 2, 3, 1),
    Sketcher.Constraint("Coincident", 3, 2, 0, 1),
    Sketcher.Constraint("Vertical", 0),
    Sketcher.Constraint("Horizontal", 1),
    Sketcher.Constraint("Vertical", 2),
    Sketcher.Constraint("Horizontal", 3),
    Sketcher.Constraint("Equal", 3, 0),
    Sketcher.Constraint("DistanceX", 1, 1, 1, 2, 0.6),
    Sketcher.Constraint("DistanceY", 0, 2, -1, 1, 10.86036),
    Sketcher.Constraint("DistanceX", -1, 1, 0, 2, 0.875344),
])
pad30 = doc.addObject("PartDesign::Pad", "Pad029")
body.addObject(pad30)
pad30.Profile = sketch30
pad30.Length = 1.2

sketch31 = doc.addObject("Sketcher::SketchObject", "Sketch030")
body.addObject(sketch31)
sketch31.AttachmentSupport = (doc.XY_Plane, [""])
sketch31.MapMode = "FlatFace"
sketch31.AttachmentOffset = App.Placement(Vector(0, 0, 2), App.Rotation())
sketch31.addGeometry([
    Part.LineSegment(Vector(4.4, -10.3, 0), Vector(4.4, -10.8, 0)),
    Part.LineSegment(Vector(4.4, -10.8, 0), Vector(4.9, -10.8, 0)),
    Part.LineSegment(Vector(4.9, -10.8, 0), Vector(4.9, -10.3, 0)),
    Part.LineSegment(Vector(4.9, -10.3, 0), Vector(4.4, -10.3, 0)),
], False)
sketch31.addConstraint([
    Sketcher.Constraint("Coincident", 0, 2, 1, 1),
    Sketcher.Constraint("Coincident", 1, 2, 2, 1),
    Sketcher.Constraint("Coincident", 2, 2, 3, 1),
    Sketcher.Constraint("Coincident", 3, 2, 0, 1),
    Sketcher.Constraint("Vertical", 0),
    Sketcher.Constraint("Horizontal", 1),
    Sketcher.Constraint("Vertical", 2),
    Sketcher.Constraint("Horizontal", 3),
    Sketcher.Constraint("Equal", 3, 0),
    Sketcher.Constraint("DistanceX", 1, 1, 1, 2, 0.5),
    Sketcher.Constraint("DistanceY", 0, 2, -1, 1, 10.81036),
    Sketcher.Constraint("DistanceX", -1, 1, 0, 2, 4.425344),
])
pad31 = doc.addObject("PartDesign::Pad", "Pad030")
body.addObject(pad31)
pad31.Profile = sketch31
pad31.Length = 1

sketch32 = doc.addObject("Sketcher::SketchObject", "Sketch031")
body.addObject(sketch32)
sketch32.AttachmentSupport = (doc.XY_Plane, [""])
sketch32.MapMode = "FlatFace"
sketch32.AttachmentOffset = App.Placement(Vector(0, 0, 2), App.Rotation())
sketch32.addGeometry([
    Part.LineSegment(Vector(7.98, -10.36, 0), Vector(7.98, -10.76, 0)),
    Part.LineSegment(Vector(7.98, -10.76, 0), Vector(8.38, -10.76, 0)),
    Part.LineSegment(Vector(8.38, -10.76, 0), Vector(8.38, -10.36, 0)),
    Part.LineSegment(Vector(8.38, -10.36, 0), Vector(7.98, -10.36, 0)),
], False)
sketch32.addConstraint([
    Sketcher.Constraint("Coincident", 0, 2, 1, 1),
    Sketcher.Constraint("Coincident", 1, 2, 2, 1),
    Sketcher.Constraint("Coincident", 2, 2, 3, 1),
    Sketcher.Constraint("Coincident", 3, 2, 0, 1),
    Sketcher.Constraint("Vertical", 0),
    Sketcher.Constraint("Horizontal", 1),
    Sketcher.Constraint("Vertical", 2),
    Sketcher.Constraint("Horizontal", 3),
    Sketcher.Constraint("Equal", 3, 0),
    Sketcher.Constraint("DistanceX", 1, 1, 1, 2, 0.4),
    Sketcher.Constraint("DistanceY", 0, 2, -1, 1, 10.76036),
    Sketcher.Constraint("DistanceX", -1, 1, 0, 2, 7.975344),
])
pad32 = doc.addObject("PartDesign::Pad", "Pad031")
body.addObject(pad32)
pad32.Profile = sketch32
pad32.Length = 0.8

sketch33 = doc.addObject("Sketcher::SketchObject", "Sketch032")
body.addObject(sketch33)
sketch33.AttachmentSupport = (doc.XY_Plane, [""])
sketch33.MapMode = "FlatFace"
sketch33.AttachmentOffset = App.Placement(Vector(0, 0, 2), App.Rotation())
sketch33.addGeometry([
    Part.LineSegment(Vector(11.53, -10.41, 0), Vector(11.53, -10.71, 0)),
    Part.LineSegment(Vector(11.53, -10.71, 0), Vector(11.83, -10.71, 0)),
    Part.LineSegment(Vector(11.83, -10.71, 0), Vector(11.83, -10.41, 0)),
    Part.LineSegment(Vector(11.83, -10.41, 0), Vector(11.53, -10.41, 0)),
], False)
sketch33.addConstraint([
    Sketcher.Constraint("Coincident", 0, 2, 1, 1),
    Sketcher.Constraint("Coincident", 1, 2, 2, 1),
    Sketcher.Constraint("Coincident", 2, 2, 3, 1),
    Sketcher.Constraint("Coincident", 3, 2, 0, 1),
    Sketcher.Constraint("Vertical", 0),
    Sketcher.Constraint("Horizontal", 1),
    Sketcher.Constraint("Vertical", 2),
    Sketcher.Constraint("Horizontal", 3),
    Sketcher.Constraint("Equal", 3, 0),
    Sketcher.Constraint("DistanceX", 1, 1, 1, 2, 0.3),
    Sketcher.Constraint("DistanceY", 0, 2, -1, 1, 10.71036),
    Sketcher.Constraint("DistanceX", -1, 1, 0, 2, 11.525344),
])
pad33 = doc.addObject("PartDesign::Pad", "Pad032")
body.addObject(pad33)
pad33.Profile = sketch33
pad33.Length = 0.6

doc.recompute()
